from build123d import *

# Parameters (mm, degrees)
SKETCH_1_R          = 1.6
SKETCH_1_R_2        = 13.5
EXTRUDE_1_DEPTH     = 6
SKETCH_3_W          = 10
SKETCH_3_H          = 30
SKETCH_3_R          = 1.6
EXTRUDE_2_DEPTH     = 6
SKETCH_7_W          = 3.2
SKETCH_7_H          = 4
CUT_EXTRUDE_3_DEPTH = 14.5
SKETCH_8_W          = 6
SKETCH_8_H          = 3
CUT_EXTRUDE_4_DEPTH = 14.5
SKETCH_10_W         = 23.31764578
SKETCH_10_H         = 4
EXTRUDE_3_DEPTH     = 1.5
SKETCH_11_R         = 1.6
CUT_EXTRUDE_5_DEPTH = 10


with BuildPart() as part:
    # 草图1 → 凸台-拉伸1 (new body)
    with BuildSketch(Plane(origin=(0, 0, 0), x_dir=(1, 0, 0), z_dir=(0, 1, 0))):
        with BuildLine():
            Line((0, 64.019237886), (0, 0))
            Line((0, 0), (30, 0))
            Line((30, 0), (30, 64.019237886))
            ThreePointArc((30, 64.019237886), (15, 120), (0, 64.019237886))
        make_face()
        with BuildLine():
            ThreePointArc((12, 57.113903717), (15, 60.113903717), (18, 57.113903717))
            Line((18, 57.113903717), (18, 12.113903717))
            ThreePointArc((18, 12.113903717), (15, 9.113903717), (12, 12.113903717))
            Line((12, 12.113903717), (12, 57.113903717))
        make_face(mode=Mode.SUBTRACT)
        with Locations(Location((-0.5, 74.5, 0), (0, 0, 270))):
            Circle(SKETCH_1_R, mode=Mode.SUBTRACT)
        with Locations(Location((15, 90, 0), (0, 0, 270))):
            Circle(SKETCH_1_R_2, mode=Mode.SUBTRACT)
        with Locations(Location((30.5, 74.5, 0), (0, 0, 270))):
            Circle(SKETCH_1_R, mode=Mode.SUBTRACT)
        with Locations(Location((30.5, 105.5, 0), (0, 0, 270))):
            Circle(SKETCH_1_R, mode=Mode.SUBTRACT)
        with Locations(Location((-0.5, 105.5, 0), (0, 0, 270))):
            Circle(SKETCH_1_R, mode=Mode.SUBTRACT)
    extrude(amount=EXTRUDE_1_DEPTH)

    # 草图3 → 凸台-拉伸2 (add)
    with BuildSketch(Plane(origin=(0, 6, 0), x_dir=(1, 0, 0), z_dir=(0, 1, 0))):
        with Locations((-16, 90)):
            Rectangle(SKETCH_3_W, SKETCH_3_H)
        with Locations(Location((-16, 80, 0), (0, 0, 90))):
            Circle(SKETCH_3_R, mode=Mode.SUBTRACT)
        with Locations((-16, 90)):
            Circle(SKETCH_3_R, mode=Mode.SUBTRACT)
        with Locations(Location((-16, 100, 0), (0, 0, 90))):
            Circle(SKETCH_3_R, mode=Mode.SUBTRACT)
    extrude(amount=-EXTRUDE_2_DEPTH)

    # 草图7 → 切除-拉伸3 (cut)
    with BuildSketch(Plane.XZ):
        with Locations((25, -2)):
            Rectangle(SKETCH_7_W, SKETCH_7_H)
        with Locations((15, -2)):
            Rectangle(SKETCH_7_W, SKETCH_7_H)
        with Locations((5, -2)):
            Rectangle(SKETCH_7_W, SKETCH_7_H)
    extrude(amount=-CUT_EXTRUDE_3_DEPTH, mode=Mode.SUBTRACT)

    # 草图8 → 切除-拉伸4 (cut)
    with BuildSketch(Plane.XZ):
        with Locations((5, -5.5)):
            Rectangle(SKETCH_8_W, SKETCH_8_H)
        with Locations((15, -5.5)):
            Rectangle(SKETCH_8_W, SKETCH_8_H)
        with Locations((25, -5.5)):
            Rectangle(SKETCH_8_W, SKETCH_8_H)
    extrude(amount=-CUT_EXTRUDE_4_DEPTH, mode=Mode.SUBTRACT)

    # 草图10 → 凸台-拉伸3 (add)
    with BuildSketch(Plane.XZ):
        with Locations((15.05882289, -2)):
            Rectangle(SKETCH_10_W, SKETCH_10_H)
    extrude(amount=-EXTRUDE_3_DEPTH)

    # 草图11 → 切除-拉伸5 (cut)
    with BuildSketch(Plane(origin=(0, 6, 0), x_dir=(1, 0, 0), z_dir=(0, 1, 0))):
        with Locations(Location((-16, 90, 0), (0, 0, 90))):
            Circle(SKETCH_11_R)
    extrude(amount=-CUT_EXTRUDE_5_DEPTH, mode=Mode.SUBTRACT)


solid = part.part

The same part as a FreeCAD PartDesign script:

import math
import FreeCAD as App
import Part
import Sketcher


def add_polygon(sketch, points):
    """Adds a closed chain of lines whose ends are joined by coincident constraints."""
    first, n = sketch.GeometryCount, len(points)
    for a, b in zip(points, points[1:] + points[:1]):
        sketch.addGeometry(Part.LineSegment(App.Vector(*a, 0), App.Vector(*b, 0)), False)
    for i in range(n):
        sketch.addConstraint(Sketcher.Constraint("Coincident", first + i, 2, first + (i + 1) % n, 1))

doc = App.newDocument("Part")
body = doc.addObject("PartDesign::Body", "Body")

sketch1 = body.newObject("Sketcher::SketchObject", "Sketch")
sketch1.AttachmentSupport = (doc.getObject("XZ_Plane"), [""])
sketch1.MapMode = "FlatFace"
sketch1.addGeometry(Part.LineSegment(App.Vector(0, -64, 0), App.Vector(0, 0, 0)), False)
sketch1.addGeometry(Part.LineSegment(App.Vector(0, 0, 0), App.Vector(30, 0, 0)), False)
sketch1.addGeometry(Part.LineSegment(App.Vector(30, 0, 0), App.Vector(30, -64, 0)), False)
sketch1.addGeometry(Part.ArcOfCircle(Part.Circle(App.Vector(15, -90, 0), App.Vector(0, 0, 1), 30), math.radians(120), math.radians(420)), False)
sketch1.addGeometry(Part.LineSegment(App.Vector(12, -12.1, 0), App.Vector(12, -57.1, 0)), False)
sketch1.addGeometry(Part.ArcOfCircle(Part.Circle(App.Vector(15, -57.1, 0), App.Vector(0, 0, 1), 3), math.radians(180), math.radians(360)), False)
sketch1.addGeometry(Part.LineSegment(App.Vector(18, -57.1, 0), App.Vector(18, -12.1, 0)), False)
sketch1.addGeometry(Part.ArcOfCircle(Part.Circle(App.Vector(15, -12.1, 0), App.Vector(0, 0, 1), 3), math.radians(0), math.radians(180)), False)
sketch1.addGeometry(Part.Circle(App.Vector(-0.5, -74.5, 0), App.Vector(0, 0, 1), 1.6), False)
sketch1.addGeometry(Part.Circle(App.Vector(-0.5, -105.5, 0), App.Vector(0, 0, 1), 1.6), False)
sketch1.addGeometry(Part.Circle(App.Vector(30.5, -74.5, 0), App.Vector(0, 0, 1), 1.6), False)
sketch1.addGeometry(Part.Circle(App.Vector(15, -90, 0), App.Vector(0, 0, 1), 13.5), False)
sketch1.addGeometry(Part.Circle(App.Vector(30.5, -105.5, 0), App.Vector(0, 0, 1), 1.6), False)
sketch1.addConstraint(Sketcher.Constraint("Coincident", 0, 2, 1, 1))
sketch1.addConstraint(Sketcher.Constraint("Coincident", 1, 2, 2, 1))
sketch1.addConstraint(Sketcher.Constraint("Coincident", 2, 2, 3, 2))
sketch1.addConstraint(Sketcher.Constraint("Coincident", 3, 1, 0, 1))
sketch1.addConstraint(Sketcher.Constraint("Tangent", 4, 2, 5, 1))
sketch1.addConstraint(Sketcher.Constraint("Tangent", 5, 2, 6, 1))
sketch1.addConstraint(Sketcher.Constraint("Tangent", 6, 2, 7, 1))
sketch1.addConstraint(Sketcher.Constraint("Tangent", 7, 2, 4, 1))
sketch1.addConstraint(Sketcher.Constraint("Vertical", 0))
sketch1.addConstraint(Sketcher.Constraint("Horizontal", 1))
sketch1.addConstraint(Sketcher.Constraint("Vertical", 2))
sketch1.addConstraint(Sketcher.Constraint("Vertical", 4))
sketch1.addConstraint(Sketcher.Constraint("Vertical", 6))
sketch1.addConstraint(Sketcher.Constraint("Coincident", 0, 2, -1, 1))
sketch1.addConstraint(Sketcher.Constraint("Coincident", 11, 3, 3, 3))
sketch1.addConstraint(Sketcher.Constraint("Equal", 8, 9))
sketch1.addConstraint(Sketcher.Constraint("Equal", 9, 10))
sketch1.addConstraint(Sketcher.Constraint("Equal", 10, 12))
sketch1.addConstraint(Sketcher.Constraint("Horizontal", 8, 3, 10, 3))
sketch1.addConstraint(Sketcher.Constraint("Horizontal", 9, 3, 12, 3))
sketch1.addConstraint(Sketcher.Constraint("Horizontal", 2, 2, 3, 1))
sketch1.addConstraint(Sketcher.Constraint("Vertical", 3, 3, 5, 3))
sketch1.addConstraint(Sketcher.Constraint("Vertical", 8, 3, 9, 3))
sketch1.addConstraint(Sketcher.Constraint("Vertical", 10, 3, 12, 3))
sketch1.addConstraint(Sketcher.Constraint("Diameter", 11, 27.0))
sketch1.addConstraint(Sketcher.Constraint("Radius", 3, 30.0))
sketch1.addConstraint(Sketcher.Constraint("Radius", 5, 3.0))
sketch1.addConstraint(Sketcher.Constraint("Diameter", 8, 3.2))
sketch1.addConstraint(Sketcher.Constraint("DistanceX", 1, 1, 1, 2, 30.0))
sketch1.addConstraint(Sketcher.Constraint("DistanceY", 4, 2, 4, 1, 45.0))
sketch1.addConstraint(Sketcher.Constraint("DistanceY", 3, 3, -1, 1, 90.0))
sketch1.addConstraint(Sketcher.Constraint("DistanceY", 9, 3, 8, 3, 31.0))
sketch1.addConstraint(Sketcher.Constraint("DistanceX", 8, 3, 10, 3, 31.0))
sketch1.addConstraint(Sketcher.Constraint("DistanceX", 8, 3, -1, 1, 0.5))
sketch1.addConstraint(Sketcher.Constraint("DistanceY", 8, 3, -1, 1, 74.5))
sketch1.addConstraint(Sketcher.Constraint("DistanceY", 5, 3, -1, 1, 57.113904))
pad1 = body.newObject("PartDesign::Pad", "Pad")
pad1.Profile = sketch1
pad1.Length = 6
pad1.Reversed = True

sketch2 = body.newObject("Sketcher::SketchObject", "Sketch001")
sketch2.AttachmentSupport = (doc.getObject("XZ_Plane"), [""])
sketch2.MapMode = "FlatFace"
sketch2.AttachmentOffset = App.Placement(App.Vector(0, 0, -6), App.Rotation())
add_polygon(sketch2, [(-21, -105), (-21, -75), (-11, -75), (-11, -105)])
sketch2.addGeometry(Part.Circle(App.Vector(-16, -80, 0), App.Vector(0, 0, 1), 1.6), False)
sketch2.addGeometry(Part.Circle(App.Vector(-16, -90, 0), App.Vector(0, 0, 1), 1.6), False)
sketch2.addGeometry(Part.Circle(App.Vector(-16, -100, 0), App.Vector(0, 0, 1), 1.6), False)
sketch2.addConstraint(Sketcher.Constraint("Vertical", 0))
sketch2.addConstraint(Sketcher.Constraint("Horizontal", 1))
sketch2.addConstraint(Sketcher.Constraint("Vertical", 2))
sketch2.addConstraint(Sketcher.Constraint("Horizontal", 3))
sketch2.addConstraint(Sketcher.Constraint("Equal", 4, 5))
sketch2.addConstraint(Sketcher.Constraint("Equal", 5, 6))
sketch2.addConstraint(Sketcher.Constraint("Vertical", 4, 3, 5, 3))
sketch2.addConstraint(Sketcher.Constraint("Vertical", 5, 3, 6, 3))
sketch2.addConstraint(Sketcher.Constraint("Diameter", 4, 3.2))
sketch2.addConstraint(Sketcher.Constraint("DistanceX", 1, 1, 1, 2, 10.0))
sketch2.addConstraint(Sketcher.Constraint("DistanceY", 0, 1, 0, 2, 30.0))
sketch2.addConstraint(Sketcher.Constraint("DistanceX", 4, 3, -1, 1, 16.0))
sketch2.addConstraint(Sketcher.Constraint("DistanceY", 4, 3, -1, 1, 80.0))
sketch2.addConstraint(Sketcher.Constraint("DistanceY", 5, 3, -1, 1, 90.0))
sketch2.addConstraint(Sketcher.Constraint("DistanceY", 6, 3, -1, 1, 100.0))
sketch2.addConstraint(Sketcher.Constraint("DistanceX", 0, 2, -1, 1, 21.0))
sketch2.addConstraint(Sketcher.Constraint("DistanceY", 0, 2, -1, 1, 75.0))
pad2 = body.newObject("PartDesign::Pad", "Pad001")
pad2.Profile = sketch2
pad2.Length = 6

sketch3 = body.newObject("Sketcher::SketchObject", "Sketch002")
sketch3.AttachmentSupport = (doc.getObject("XZ_Plane"), [""])
sketch3.MapMode = "FlatFace"
add_polygon(sketch3, [(23.4, 0), (23.4, -4), (26.6, -4), (26.6, 0)])
add_polygon(sketch3, [(13.4, 0), (13.4, -4), (16.6, -4), (16.6, 0)])
add_polygon(sketch3, [(3.4, 0), (3.4, -4), (6.6, -4), (6.6, 0)])
sketch3.addConstraint(Sketcher.Constraint("Vertical", 0))
sketch3.addConstraint(Sketcher.Constraint("Horizontal", 1))
sketch3.addConstraint(Sketcher.Constraint("Vertical", 2))
sketch3.addConstraint(Sketcher.Constraint("Horizontal", 3))
sketch3.addConstraint(Sketcher.Constraint("Vertical", 4))
sketch3.addConstraint(Sketcher.Constraint("Horizontal", 5))
sketch3.addConstraint(Sketcher.Constraint("Vertical", 6))
sketch3.addConstraint(Sketcher.Constraint("Horizontal", 7))
sketch3.addConstraint(Sketcher.Constraint("Vertical", 8))
sketch3.addConstraint(Sketcher.Constraint("Horizontal", 9))
sketch3.addConstraint(Sketcher.Constraint("Vertical", 10))
sketch3.addConstraint(Sketcher.Constraint("Horizontal", 11))
sketch3.addConstraint(Sketcher.Constraint("PointOnObject", 2, 2, -1))
sketch3.addConstraint(Sketcher.Constraint("PointOnObject", 6, 2, -1))
sketch3.addConstraint(Sketcher.Constraint("PointOnObject", 10, 2, -1))
sketch3.addConstraint(Sketcher.Constraint("Horizontal", 1, 2, 4, 2))
sketch3.addConstraint(Sketcher.Constraint("Horizontal", 5, 2, 8, 2))
sketch3.addConstraint(Sketcher.Constraint("Equal", 3, 5))
sketch3.addConstraint(Sketcher.Constraint("Equal", 7, 9))
sketch3.addConstraint(Sketcher.Constraint("DistanceY", 0, 2, 0, 1, 4.0))
sketch3.addConstraint(Sketcher.Constraint("DistanceX", 1, 1, 1, 2, 3.2))
sketch3.addConstraint(Sketcher.Constraint("DistanceX", 4, 2, 0, 2, 10.0))
sketch3.addConstraint(Sketcher.Constraint("DistanceX", 8, 2, 4, 2, 10.0))
sketch3.addConstraint(Sketcher.Constraint("DistanceX", -1, 1, 0, 2, 23.4))
pocket1 = body.newObject("PartDesign::Pocket", "Pocket")
pocket1.Profile = sketch3
pocket1.Length = 14.5

sketch4 = body.newObject("Sketcher::SketchObject", "Sketch003")
sketch4.AttachmentSupport = (doc.getObject("XZ_Plane"), [""])
sketch4.MapMode = "FlatFace"
add_polygon(sketch4, [(2, -4), (2, -7), (8, -7), (8, -4)])
add_polygon(sketch4, [(12, -4), (12, -7), (18, -7), (18, -4)])
add_polygon(sketch4, [(22, -4), (22, -7), (28, -7), (28, -4)])
sketch4.addConstraint(Sketcher.Constraint("Vertical", 0))
sketch4.addConstraint(Sketcher.Constraint("Horizontal", 1))
sketch4.addConstraint(Sketcher.Constraint("Vertical", 2))
sketch4.addConstraint(Sketcher.Constraint("Horizontal", 3))
sketch4.addConstraint(Sketcher.Constraint("Vertical", 4))
sketch4.addConstraint(Sketcher.Constraint("Horizontal", 5))
sketch4.addConstraint(Sketcher.Constraint("Vertical", 6))
sketch4.addConstraint(Sketcher.Constraint("Horizontal", 7))
sketch4.addConstraint(Sketcher.Constraint("Vertical", 8))
sketch4.addConstraint(Sketcher.Constraint("Horizontal", 9))
sketch4.addConstraint(Sketcher.Constraint("Vertical", 10))
sketch4.addConstraint(Sketcher.Constraint("Horizontal", 11))
sketch4.addConstraint(Sketcher.Constraint("Horizontal", 1, 2, 4, 2))
sketch4.addConstraint(Sketcher.Constraint("Horizontal", 3, 2, 6, 2))
sketch4.addConstraint(Sketcher.Constraint("Horizontal", 5, 2, 8, 2))
sketch4.addConstraint(Sketcher.Constraint("Horizontal", 7, 2, 10, 2))
sketch4.addConstraint(Sketcher.Constraint("Equal", 3, 5))
sketch4.addConstraint(Sketcher.Constraint("Equal", 7, 9))
sketch4.addConstraint(Sketcher.Constraint("DistanceX", 1, 1, 1, 2, 6.0))
sketch4.addConstraint(Sketcher.Constraint("DistanceY", 0, 2, 0, 1, 3.0))
sketch4.addConstraint(Sketcher.Constraint("DistanceX", -1, 1, 0, 2, 2.0))
sketch4.addConstraint(Sketcher.Constraint("DistanceY", 0, 2, -1, 1, 7.0))
sketch4.addConstraint(Sketcher.Constraint("DistanceX", -1, 1, 4, 2, 12.0))
sketch4.addConstraint(Sketcher.Constraint("DistanceX", -1, 1, 8, 2, 22.0))
pocket2 = body.newObject("PartDesign::Pocket", "Pocket001")
pocket2.Profile = sketch4
pocket2.Length = 14.5

sketch5 = body.newObject("Sketcher::SketchObject", "Sketch004")
sketch5.AttachmentSupport = (doc.getObject("XZ_Plane"), [""])
sketch5.MapMode = "FlatFace"
add_polygon(sketch5, [(3.4, 0), (3.4, -4), (26.7, -4), (26.7, 0)])
sketch5.addConstraint(Sketcher.Constraint("Vertical", 0))
sketch5.addConstraint(Sketcher.Constraint("Horizontal", 1))
sketch5.addConstraint(Sketcher.Constraint("Vertical", 2))
sketch5.addConstraint(Sketcher.Constraint("Horizontal", 3))
sketch5.addConstraint(Sketcher.Constraint("PointOnObject", 2, 2, -1))
sketch5.addConstraint(Sketcher.Constraint("DistanceY", 0, 2, 0, 1, 4.0))
sketch5.addConstraint(Sketcher.Constraint("DistanceX", -1, 1, 0, 2, 3.4))
sketch5.addConstraint(Sketcher.Constraint("DistanceX", 1, 1, 1, 2, 23.317646))
pad3 = body.newObject("PartDesign::Pad", "Pad002")
pad3.Profile = sketch5
pad3.Length = 1.5
pad3.Reversed = True

sketch6 = body.newObject("Sketcher::SketchObject", "Sketch005")
sketch6.AttachmentSupport = (doc.getObject("XZ_Plane"), [""])
sketch6.MapMode = "FlatFace"
sketch6.AttachmentOffset = App.Placement(App.Vector(0, 0, -6), App.Rotation())
sketch6.addGeometry(Part.Circle(App.Vector(-16, -90, 0), App.Vector(0, 0, 1), 1.6), False)
sketch6.addConstraint(Sketcher.Constraint("Diameter", 0, 3.2))
sketch6.addConstraint(Sketcher.Constraint("DistanceX", 0, 3, -1, 1, 16.0))
sketch6.addConstraint(Sketcher.Constraint("DistanceY", 0, 3, -1, 1, 90.0))
pocket3 = body.newObject("PartDesign::Pocket", "Pocket002")
pocket3.Profile = sketch6
pocket3.Length = 10
pocket3.Reversed = True

doc.recompute()
